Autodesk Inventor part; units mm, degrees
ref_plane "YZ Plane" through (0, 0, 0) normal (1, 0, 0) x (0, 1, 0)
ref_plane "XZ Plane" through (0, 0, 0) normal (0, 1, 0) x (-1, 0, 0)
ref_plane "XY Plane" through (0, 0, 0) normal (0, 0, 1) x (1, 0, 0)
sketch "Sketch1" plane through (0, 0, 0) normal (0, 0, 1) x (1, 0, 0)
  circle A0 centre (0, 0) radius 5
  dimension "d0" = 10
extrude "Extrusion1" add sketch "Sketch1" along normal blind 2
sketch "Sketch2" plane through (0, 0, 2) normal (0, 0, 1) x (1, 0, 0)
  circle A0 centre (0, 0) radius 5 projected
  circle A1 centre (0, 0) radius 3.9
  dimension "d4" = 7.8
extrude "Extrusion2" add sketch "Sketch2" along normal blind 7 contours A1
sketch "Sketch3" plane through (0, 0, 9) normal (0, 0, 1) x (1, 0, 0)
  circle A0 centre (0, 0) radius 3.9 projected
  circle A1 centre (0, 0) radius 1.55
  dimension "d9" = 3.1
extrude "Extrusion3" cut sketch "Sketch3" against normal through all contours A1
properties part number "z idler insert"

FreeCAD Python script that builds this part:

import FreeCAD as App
import Part
import Sketcher

doc = App.newDocument("Part")
params = doc.addObject("Spreadsheet::Sheet", "Params")
for row, (alias, value) in enumerate([
    ("sketch1_diameter", "10 mm"),
    ("pad1_length", "2 mm"),
    ("sketch2_diameter", "7.8 mm"),
    ("pad2_length", "7 mm"),
    ("sketch3_diameter", "3.1 mm"),
], start=1):
    params.set(f"A{row}", alias)
    params.set(f"B{row}", "=" + value)
    params.setAlias(f"B{row}", alias)

body = doc.addObject("PartDesign::Body", "Body")

sketch1 = doc.addObject("Sketcher::SketchObject", "Sketch")
body.addObject(sketch1)
sketch1.AttachmentSupport = (doc.XY_Plane, [""])
sketch1.MapMode = "FlatFace"
sketch1.addGeometry(Part.Circle(App.Vector(0, 0, 0), App.Vector(0, 0, 1), 5), False)
sketch1.addConstraint([
    Sketcher.Constraint("Coincident", 0, 3, -1, 1),
    Sketcher.Constraint("Diameter", 0, 10.0),
])
sketch1.setExpression("Constraints[1]", "Params.sketch1_diameter")
pad1 = doc.addObject("PartDesign::Pad", "Pad")
body.addObject(pad1)
pad1.Profile = sketch1
pad1.setExpression("Length", "Params.pad1_length")

sketch2 = doc.addObject("Sketcher::SketchObject", "Sketch001")
body.addObject(sketch2)
sketch2.AttachmentSupport = (doc.XY_Plane, [""])
sketch2.MapMode = "FlatFace"
sketch2.AttachmentOffset = App.Placement(App.Vector(0, 0, 2), App.Rotation())
sketch2.addGeometry(Part.Circle(App.Vector(0, 0, 0), App.Vector(0, 0, 1), 3.9), False)
sketch2.addConstraint([
    Sketcher.Constraint("Coincident", 0, 3, -1, 1),
    Sketcher.Constraint("Diameter", 0, 7.8),
])
sketch2.setExpression("Constraints[1]", "Params.sketch2_diameter")
pad2 = doc.addObject("PartDesign::Pad", "Pad001")
body.addObject(pad2)
pad2.Profile = sketch2
pad2.setExpression("Length", "Params.pad2_length")

sketch3 = doc.addObject("Sketcher::SketchObject", "Sketch002")
body.addObject(sketch3)
sketch3.AttachmentSupport = (doc.XY_Plane, [""])
sketch3.MapMode = "FlatFace"
sketch3.AttachmentOffset = App.Placement(App.Vector(0, 0, 9), App.Rotation())
sketch3.addGeometry(Part.Circle(App.Vector(0, 0, 0), App.Vector(0, 0, 1), 1.6), False)
sketch3.addConstraint([
    Sketcher.Constraint("Coincident", 0, 3, -1, 1),
    Sketcher.Constraint("Diameter", 0, 3.1),
])
sketch3.setExpression("Constraints[1]", "Params.sketch3_diameter")
pocket1 = doc.addObject("PartDesign::Pocket", "Pocket")
body.addObject(pocket1)
pocket1.Profile = sketch3
pocket1.Type = "ThroughAll"

doc.recompute()
